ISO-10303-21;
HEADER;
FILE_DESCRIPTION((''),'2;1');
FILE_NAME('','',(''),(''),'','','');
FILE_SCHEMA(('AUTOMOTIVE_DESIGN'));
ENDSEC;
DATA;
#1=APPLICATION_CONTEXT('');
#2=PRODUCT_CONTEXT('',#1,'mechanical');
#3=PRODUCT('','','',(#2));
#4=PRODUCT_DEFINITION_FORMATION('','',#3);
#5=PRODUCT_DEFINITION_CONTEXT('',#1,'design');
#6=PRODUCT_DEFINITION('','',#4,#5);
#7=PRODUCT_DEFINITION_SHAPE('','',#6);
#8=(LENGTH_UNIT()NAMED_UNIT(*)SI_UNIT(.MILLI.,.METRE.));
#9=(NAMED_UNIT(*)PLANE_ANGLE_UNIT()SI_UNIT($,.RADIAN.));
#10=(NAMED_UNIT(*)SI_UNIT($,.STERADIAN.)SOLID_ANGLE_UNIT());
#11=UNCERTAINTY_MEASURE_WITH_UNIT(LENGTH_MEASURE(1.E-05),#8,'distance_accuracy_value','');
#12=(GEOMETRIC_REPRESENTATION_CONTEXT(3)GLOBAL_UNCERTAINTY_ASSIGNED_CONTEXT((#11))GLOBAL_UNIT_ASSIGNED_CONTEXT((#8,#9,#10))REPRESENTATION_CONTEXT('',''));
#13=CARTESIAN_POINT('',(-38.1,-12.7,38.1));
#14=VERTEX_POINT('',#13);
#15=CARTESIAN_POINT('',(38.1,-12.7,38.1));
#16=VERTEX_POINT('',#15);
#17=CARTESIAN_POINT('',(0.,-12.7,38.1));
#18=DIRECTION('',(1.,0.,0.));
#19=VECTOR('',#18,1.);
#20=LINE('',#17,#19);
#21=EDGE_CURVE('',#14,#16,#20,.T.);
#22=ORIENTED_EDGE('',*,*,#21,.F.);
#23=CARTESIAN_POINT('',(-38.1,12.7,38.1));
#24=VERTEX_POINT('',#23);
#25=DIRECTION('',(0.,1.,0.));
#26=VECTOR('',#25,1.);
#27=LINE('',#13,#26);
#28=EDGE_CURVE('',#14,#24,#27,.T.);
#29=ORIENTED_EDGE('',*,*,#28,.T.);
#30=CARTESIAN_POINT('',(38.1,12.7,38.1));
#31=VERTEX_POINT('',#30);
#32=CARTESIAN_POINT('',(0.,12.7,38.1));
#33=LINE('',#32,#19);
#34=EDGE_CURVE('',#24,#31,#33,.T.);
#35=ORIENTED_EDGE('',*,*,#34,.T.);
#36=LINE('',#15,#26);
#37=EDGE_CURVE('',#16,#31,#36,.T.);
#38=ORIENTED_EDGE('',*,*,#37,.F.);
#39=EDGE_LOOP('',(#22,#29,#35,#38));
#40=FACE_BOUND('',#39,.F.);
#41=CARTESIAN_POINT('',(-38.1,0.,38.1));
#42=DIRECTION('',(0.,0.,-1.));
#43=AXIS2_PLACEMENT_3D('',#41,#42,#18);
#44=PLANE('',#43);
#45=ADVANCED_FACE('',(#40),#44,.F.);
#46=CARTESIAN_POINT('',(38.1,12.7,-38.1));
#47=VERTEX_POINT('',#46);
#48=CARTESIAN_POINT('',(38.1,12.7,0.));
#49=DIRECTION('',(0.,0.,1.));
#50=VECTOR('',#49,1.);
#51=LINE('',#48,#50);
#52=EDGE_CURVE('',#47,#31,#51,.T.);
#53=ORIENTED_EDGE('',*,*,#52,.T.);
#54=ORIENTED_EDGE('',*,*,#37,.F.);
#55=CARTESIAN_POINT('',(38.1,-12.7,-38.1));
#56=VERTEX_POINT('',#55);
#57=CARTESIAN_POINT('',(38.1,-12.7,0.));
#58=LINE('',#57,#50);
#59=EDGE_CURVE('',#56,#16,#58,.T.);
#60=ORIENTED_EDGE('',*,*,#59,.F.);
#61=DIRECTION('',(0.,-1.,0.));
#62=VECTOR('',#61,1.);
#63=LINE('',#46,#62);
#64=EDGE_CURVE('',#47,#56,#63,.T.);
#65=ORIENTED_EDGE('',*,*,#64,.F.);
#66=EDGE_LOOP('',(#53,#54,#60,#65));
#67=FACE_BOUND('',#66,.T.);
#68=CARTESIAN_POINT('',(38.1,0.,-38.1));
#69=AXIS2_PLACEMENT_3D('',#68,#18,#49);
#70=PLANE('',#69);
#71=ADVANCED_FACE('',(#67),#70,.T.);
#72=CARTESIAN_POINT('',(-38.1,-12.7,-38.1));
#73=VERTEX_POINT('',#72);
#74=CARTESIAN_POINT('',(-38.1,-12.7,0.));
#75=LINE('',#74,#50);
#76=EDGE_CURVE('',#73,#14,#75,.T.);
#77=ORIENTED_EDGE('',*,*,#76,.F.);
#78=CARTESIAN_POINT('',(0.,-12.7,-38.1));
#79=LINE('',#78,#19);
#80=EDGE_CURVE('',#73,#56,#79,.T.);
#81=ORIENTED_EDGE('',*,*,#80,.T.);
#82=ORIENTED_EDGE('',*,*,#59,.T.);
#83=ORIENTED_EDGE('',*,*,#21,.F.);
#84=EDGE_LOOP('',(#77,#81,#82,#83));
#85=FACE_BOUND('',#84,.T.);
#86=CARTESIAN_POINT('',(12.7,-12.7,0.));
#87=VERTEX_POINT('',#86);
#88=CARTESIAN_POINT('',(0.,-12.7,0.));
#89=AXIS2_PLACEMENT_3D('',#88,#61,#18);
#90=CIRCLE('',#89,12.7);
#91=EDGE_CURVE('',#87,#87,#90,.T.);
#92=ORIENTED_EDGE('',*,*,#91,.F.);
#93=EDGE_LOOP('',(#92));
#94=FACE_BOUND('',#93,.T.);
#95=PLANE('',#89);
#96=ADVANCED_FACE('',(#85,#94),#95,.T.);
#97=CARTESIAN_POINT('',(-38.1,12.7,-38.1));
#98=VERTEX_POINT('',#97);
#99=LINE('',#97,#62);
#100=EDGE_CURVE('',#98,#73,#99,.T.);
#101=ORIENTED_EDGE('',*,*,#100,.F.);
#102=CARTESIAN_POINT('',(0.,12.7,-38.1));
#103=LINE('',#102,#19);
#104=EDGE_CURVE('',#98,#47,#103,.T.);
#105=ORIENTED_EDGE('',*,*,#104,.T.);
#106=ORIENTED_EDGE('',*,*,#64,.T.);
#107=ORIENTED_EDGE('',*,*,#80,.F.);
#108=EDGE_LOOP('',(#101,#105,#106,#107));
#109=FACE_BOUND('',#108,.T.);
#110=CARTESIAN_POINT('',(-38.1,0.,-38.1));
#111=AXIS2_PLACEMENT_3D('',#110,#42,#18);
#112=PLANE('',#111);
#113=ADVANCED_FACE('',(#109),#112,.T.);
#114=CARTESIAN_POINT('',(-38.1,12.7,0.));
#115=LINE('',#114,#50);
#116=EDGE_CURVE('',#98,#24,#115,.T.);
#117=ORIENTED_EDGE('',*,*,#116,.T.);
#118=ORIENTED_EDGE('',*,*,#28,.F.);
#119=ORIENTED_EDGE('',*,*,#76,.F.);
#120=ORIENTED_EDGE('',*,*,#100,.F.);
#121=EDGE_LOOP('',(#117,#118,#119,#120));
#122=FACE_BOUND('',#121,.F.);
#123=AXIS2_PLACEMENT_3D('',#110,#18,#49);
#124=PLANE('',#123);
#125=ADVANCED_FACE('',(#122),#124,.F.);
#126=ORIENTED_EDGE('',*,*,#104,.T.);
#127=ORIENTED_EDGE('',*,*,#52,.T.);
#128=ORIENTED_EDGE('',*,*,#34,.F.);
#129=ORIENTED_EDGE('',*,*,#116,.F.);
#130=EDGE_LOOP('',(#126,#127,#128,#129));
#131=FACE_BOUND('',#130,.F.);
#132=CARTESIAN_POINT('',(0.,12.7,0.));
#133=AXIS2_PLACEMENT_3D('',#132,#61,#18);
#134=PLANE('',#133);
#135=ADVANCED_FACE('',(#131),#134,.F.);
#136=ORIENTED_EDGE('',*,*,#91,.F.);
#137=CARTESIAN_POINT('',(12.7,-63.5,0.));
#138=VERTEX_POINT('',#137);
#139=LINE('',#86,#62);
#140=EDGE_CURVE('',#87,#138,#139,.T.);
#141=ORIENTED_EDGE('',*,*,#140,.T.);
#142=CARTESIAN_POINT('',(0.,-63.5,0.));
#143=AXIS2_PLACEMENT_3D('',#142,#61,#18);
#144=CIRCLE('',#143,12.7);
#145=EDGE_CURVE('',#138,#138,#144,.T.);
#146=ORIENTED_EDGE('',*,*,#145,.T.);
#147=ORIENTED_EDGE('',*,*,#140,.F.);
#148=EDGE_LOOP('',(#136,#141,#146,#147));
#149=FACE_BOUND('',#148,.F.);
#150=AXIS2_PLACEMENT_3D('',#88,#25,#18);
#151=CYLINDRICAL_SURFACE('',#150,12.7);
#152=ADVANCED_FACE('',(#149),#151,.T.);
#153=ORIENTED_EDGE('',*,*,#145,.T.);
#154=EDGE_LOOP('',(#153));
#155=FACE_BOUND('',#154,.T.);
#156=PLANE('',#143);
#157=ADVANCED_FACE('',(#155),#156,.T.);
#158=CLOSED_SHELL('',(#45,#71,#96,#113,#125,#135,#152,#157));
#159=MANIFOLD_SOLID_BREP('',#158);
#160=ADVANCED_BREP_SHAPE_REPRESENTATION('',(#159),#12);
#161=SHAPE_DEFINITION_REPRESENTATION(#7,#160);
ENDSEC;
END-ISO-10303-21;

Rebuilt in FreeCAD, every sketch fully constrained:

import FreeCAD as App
import Part
import Sketcher
Q = App.Units.Quantity

doc = App.newDocument("Part")
body = doc.addObject("PartDesign::Body", "Body")

sketch1 = doc.addObject("Sketcher::SketchObject", "Sketch")
body.addObject(sketch1)
sketch1.AttachmentSupport = (doc.XZ_Plane, [""])
sketch1.MapMode = "FlatFace"
sketch1.addGeometry([
    Part.LineSegment(App.Vector(-38.1, 38.1, 0), App.Vector(-38.1, -38.1, 0)),
    Part.LineSegment(App.Vector(-38.1, -38.1, 0), App.Vector(38.1, -38.1, 0)),
    Part.LineSegment(App.Vector(38.1, -38.1, 0), App.Vector(38.1, 38.1, 0)),
    Part.LineSegment(App.Vector(38.1, 38.1, 0), App.Vector(-38.1, 38.1, 0)),
], False)
sketch1.addConstraint([
    Sketcher.Constraint("Coincident", 0, 2, 1, 1),
    Sketcher.Constraint("Coincident", 1, 2, 2, 1),
    Sketcher.Constraint("Coincident", 2, 2, 3, 1),
    Sketcher.Constraint("Coincident", 3, 2, 0, 1),
    Sketcher.Constraint("Vertical", 0),
    Sketcher.Constraint("Horizontal", 1),
    Sketcher.Constraint("Vertical", 2),
    Sketcher.Constraint("Horizontal", 3),
    Sketcher.Constraint("Symmetric", 0, 2, 2, 2, -1, 1),
    Sketcher.Constraint("Equal", 3, 0),
    Sketcher.Constraint("DistanceX", 1, 1, 1, 2, Q("3 in")),
])
pad1 = doc.addObject("PartDesign::Pad", "Pad")
body.addObject(pad1)
pad1.Profile = sketch1
pad1.Length = Q("1 in")
pad1.Midplane = True

sketch2 = doc.addObject("Sketcher::SketchObject", "Sketch001")
body.addObject(sketch2)
sketch2.AttachmentSupport = (doc.XZ_Plane, [""])
sketch2.MapMode = "FlatFace"
sketch2.AttachmentOffset = App.Placement(App.Vector(0, 0, 0.5 * 25.4), App.Rotation())
sketch2.addGeometry(Part.Circle(App.Vector(0, 0, 0), App.Vector(0, 0, 1), 12.7), False)
sketch2.addConstraint([
    Sketcher.Constraint("Coincident", 0, 3, -1, 1),
    Sketcher.Constraint("Diameter", 0, Q("1 in")),
])
pad2 = doc.addObject("PartDesign::Pad", "Pad001")
body.addObject(pad2)
pad2.Profile = sketch2
pad2.Length = Q("2 in")

doc.recompute()
